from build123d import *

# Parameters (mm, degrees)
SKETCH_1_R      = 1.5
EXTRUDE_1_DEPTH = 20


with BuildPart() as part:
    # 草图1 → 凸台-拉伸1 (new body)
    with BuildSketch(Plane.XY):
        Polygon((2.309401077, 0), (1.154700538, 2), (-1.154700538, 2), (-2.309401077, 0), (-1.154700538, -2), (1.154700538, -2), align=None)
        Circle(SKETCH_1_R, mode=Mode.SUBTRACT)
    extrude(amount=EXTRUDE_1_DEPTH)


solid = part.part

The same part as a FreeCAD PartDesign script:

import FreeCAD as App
import Part
import Sketcher
from FreeCAD import Vector
Q = App.Units.Quantity

doc = App.newDocument("Part")
body = doc.addObject("PartDesign::Body", "Body")

# Sketch on XY plane
sketch1 = body.newObject("Sketcher::SketchObject", "Sketch")
sketch1.AttachmentSupport = (doc.getObject("XY_Plane"), [""])
sketch1.MapMode = "FlatFace"
sketch1.addGeometry([
    Part.LineSegment(Vector(2.3, 0, 0), Vector(1.2, 2, 0)),  # 0
    Part.LineSegment(Vector(1.2, 2, 0), Vector(-1.2, 2, 0)),  # 1
    Part.LineSegment(Vector(-1.2, 2, 0), Vector(-2.3, 0, 0)),  # 2
    Part.LineSegment(Vector(-2.3, 0, 0), Vector(-1.2, -2, 0)),  # 3
    Part.LineSegment(Vector(-1.2, -2, 0), Vector(1.2, -2, 0)),  # 4
    Part.LineSegment(Vector(1.2, -2, 0), Vector(2.3, 0, 0)),  # 5
    Part.Circle(Vector(0, 0, 0), Vector(0, 0, 1), 1.5),  # 6
], False)
sketch1.addConstraint([
    Sketcher.Constraint("Coincident", 0, 2, 1, 1),
    Sketcher.Constraint("Coincident", 1, 2, 2, 1),
    Sketcher.Constraint("Coincident", 2, 2, 3, 1),
    Sketcher.Constraint("Coincident", 3, 2, 4, 1),
    Sketcher.Constraint("Coincident", 4, 2, 5, 1),
    Sketcher.Constraint("Coincident", 5, 2, 0, 1),
    Sketcher.Constraint("Horizontal", 1),
    Sketcher.Constraint("Horizontal", 4),
    Sketcher.Constraint("Coincident", 6, 3, -1, 1),
    Sketcher.Constraint("Symmetric", 0, 2, 3, 2, -1, 1),
    Sketcher.Constraint("Symmetric", 2, 2, 5, 2, -1, 1),
    Sketcher.Constraint("PointOnObject", 2, 2, -1),
    Sketcher.Constraint("Parallel", 2, 5),
    Sketcher.Constraint("Vertical", 1, 2, 3, 2),
    Sketcher.Constraint("Diameter", 6, 3.0),
    Sketcher.Constraint("Angle", 0, Q("120 deg")),
    Sketcher.Constraint("DistanceY", -1, 1, 0, 2, 2.0),
    Sketcher.Constraint("DistanceX", 1, 2, 1, 1, 2.309401),
])
pad1 = body.newObject("PartDesign::Pad", "Pad")
pad1.Profile = sketch1
pad1.Length = 20

doc.recompute()
